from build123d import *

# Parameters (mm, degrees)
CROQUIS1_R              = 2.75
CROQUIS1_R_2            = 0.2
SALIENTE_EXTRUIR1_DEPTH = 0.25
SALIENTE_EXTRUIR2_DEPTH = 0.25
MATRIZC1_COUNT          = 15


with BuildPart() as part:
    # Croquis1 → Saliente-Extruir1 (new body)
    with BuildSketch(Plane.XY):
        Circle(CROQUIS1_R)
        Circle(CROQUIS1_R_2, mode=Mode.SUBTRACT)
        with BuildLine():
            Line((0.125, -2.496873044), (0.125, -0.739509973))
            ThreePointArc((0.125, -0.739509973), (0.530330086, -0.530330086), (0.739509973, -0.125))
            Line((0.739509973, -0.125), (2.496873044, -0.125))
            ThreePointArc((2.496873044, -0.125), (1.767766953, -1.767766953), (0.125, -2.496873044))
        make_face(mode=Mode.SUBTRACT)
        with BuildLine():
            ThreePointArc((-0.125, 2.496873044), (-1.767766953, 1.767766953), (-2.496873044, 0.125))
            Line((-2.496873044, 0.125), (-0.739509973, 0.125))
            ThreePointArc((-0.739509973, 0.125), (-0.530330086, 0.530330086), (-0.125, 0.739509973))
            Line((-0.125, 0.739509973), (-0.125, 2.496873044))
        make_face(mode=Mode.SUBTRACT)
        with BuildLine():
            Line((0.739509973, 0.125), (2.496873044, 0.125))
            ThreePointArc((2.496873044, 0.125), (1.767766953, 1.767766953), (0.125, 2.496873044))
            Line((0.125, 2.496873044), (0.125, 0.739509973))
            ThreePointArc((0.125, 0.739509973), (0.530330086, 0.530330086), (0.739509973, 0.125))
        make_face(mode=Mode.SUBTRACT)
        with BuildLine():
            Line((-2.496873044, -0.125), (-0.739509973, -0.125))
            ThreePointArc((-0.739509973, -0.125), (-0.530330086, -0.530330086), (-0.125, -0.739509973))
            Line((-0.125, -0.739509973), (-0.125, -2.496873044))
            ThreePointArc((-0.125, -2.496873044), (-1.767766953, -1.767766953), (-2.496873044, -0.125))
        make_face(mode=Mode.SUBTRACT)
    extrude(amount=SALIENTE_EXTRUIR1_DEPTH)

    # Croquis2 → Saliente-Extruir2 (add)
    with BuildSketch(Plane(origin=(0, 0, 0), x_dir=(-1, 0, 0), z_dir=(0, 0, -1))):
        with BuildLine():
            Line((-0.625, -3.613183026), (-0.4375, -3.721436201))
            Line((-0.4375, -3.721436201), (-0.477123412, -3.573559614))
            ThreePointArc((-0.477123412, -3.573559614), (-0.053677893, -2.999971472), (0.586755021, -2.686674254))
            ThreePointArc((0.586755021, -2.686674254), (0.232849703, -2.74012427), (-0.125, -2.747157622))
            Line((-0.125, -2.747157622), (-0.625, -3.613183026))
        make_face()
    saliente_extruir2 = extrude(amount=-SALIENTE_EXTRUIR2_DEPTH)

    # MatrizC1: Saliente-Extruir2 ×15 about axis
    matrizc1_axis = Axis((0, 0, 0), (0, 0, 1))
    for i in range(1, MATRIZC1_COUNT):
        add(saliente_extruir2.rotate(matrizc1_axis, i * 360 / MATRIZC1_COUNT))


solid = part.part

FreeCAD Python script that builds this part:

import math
import FreeCAD as App
import Part
import Sketcher

V = App.Vector
Q = App.Units.Quantity

doc = App.newDocument("Part")
params = doc.addObject("Spreadsheet::Sheet", "Params")
for row, (alias, value) in enumerate([
    ("sketch1_diameter", "5.5 mm"),
    ("sketch1_diameter2", "0.4 mm"),
    ("sketch1_radius", "2.5 mm"),
    ("sketch1_radius2", "0.75 mm"),
    ("pad1_length", "0.25 mm"),
    ("sketch2_radius", "1.5 mm"),
    ("sketch2_radius2", "2.75 mm"),
    ("sketch2_length", "1 mm"),
    ("pad2_length", "0.25 mm"),
], start=1):
    params.set(f"A{row}", alias)
    params.set(f"B{row}", "=" + value)
    params.setAlias(f"B{row}", alias)

body = doc.addObject("PartDesign::Body", "Body")

sketch1 = body.newObject("Sketcher::SketchObject", "Sketch")
sketch1.AttachmentSupport = (doc.getObject("XY_Plane"), [""])
sketch1.MapMode = "FlatFace"
sketch1.addGeometry([
    Part.Circle(V(0, 0, 0), V(0, 0, 1), 2.75),
    Part.ArcOfCircle(Part.Circle(V(0, 0, 0), V(0, 0, 1), 2.5), math.radians(-177), math.radians(-93)),
    Part.LineSegment(V(-2.5, -0.12, 0), V(-0.74, -0.12, 0)),
    Part.ArcOfCircle(Part.Circle(V(0, 0, 0), V(0, 0, 1), 0.75), math.radians(-170), math.radians(-100)),
    Part.LineSegment(V(-0.12, -0.74, 0), V(-0.12, -2.5, 0)),
    Part.ArcOfCircle(Part.Circle(V(0, 0, 0), V(0, 0, 1), 2.5), math.radians(-87), math.radians(-3)),
    Part.LineSegment(V(0.12, -2.5, 0), V(0.12, -0.74, 0)),
    Part.ArcOfCircle(Part.Circle(V(0, 0, 0), V(0, 0, 1), 0.75), math.radians(-80), math.radians(-10)),
    Part.LineSegment(V(0.74, -0.12, 0), V(2.5, -0.12, 0)),
    Part.ArcOfCircle(Part.Circle(V(0, 0, 0), V(0, 0, 1), 2.5), math.radians(93), math.radians(177)),
    Part.LineSegment(V(-0.12, 2.5, 0), V(-0.12, 0.74, 0)),
    Part.ArcOfCircle(Part.Circle(V(0, 0, 0), V(0, 0, 1), 0.75), math.radians(100), math.radians(170)),
    Part.LineSegment(V(-0.74, 0.12, 0), V(-2.5, 0.12, 0)),
    Part.Circle(V(0, 0, 0), V(0, 0, 1), 0.2),
    Part.LineSegment(V(2.5, 0.12, 0), V(0.74, 0.12, 0)),
    Part.ArcOfCircle(Part.Circle(V(0, 0, 0), V(0, 0, 1), 0.75), math.radians(10), math.radians(80)),
    Part.LineSegment(V(0.12, 0.74, 0), V(0.12, 2.5, 0)),
    Part.ArcOfCircle(Part.Circle(V(0, 0, 0), V(0, 0, 1), 2.5), math.radians(3), math.radians(87)),
], False)
sketch1.addConstraint([
    Sketcher.Constraint("Coincident", 1, 1, 2, 1),
    Sketcher.Constraint("Coincident", 2, 2, 3, 1),
    Sketcher.Constraint("Coincident", 3, 2, 4, 1),
    Sketcher.Constraint("Coincident", 4, 2, 1, 2),
    Sketcher.Constraint("Coincident", 5, 1, 6, 1),
    Sketcher.Constraint("Coincident", 6, 2, 7, 1),
    Sketcher.Constraint("Coincident", 7, 2, 8, 1),
    Sketcher.Constraint("Coincident", 8, 2, 5, 2),
    Sketcher.Constraint("Coincident", 9, 1, 10, 1),
    Sketcher.Constraint("Coincident", 10, 2, 11, 1),
    Sketcher.Constraint("Coincident", 11, 2, 12, 1),
    Sketcher.Constraint("Coincident", 12, 2, 9, 2),
    Sketcher.Constraint("Coincident", 14, 2, 15, 1),
    Sketcher.Constraint("Coincident", 15, 2, 16, 1),
    Sketcher.Constraint("Coincident", 16, 2, 17, 2),
    Sketcher.Constraint("Coincident", 17, 1, 14, 1),
    Sketcher.Constraint("Horizontal", 2),
    Sketcher.Constraint("Vertical", 4),
    Sketcher.Constraint("Vertical", 6),
    Sketcher.Constraint("Horizontal", 8),
    Sketcher.Constraint("Vertical", 10),
    Sketcher.Constraint("Horizontal", 12),
    Sketcher.Constraint("Horizontal", 14),
    Sketcher.Constraint("Vertical", 16),
    Sketcher.Constraint("Coincident", 0, 3, -1, 1),
    Sketcher.Constraint("Coincident", 1, 3, -1, 1),
    Sketcher.Constraint("Coincident", 3, 3, -1, 1),
    Sketcher.Constraint("Coincident", 5, 3, -1, 1),
    Sketcher.Constraint("Coincident", 7, 3, -1, 1),
    Sketcher.Constraint("Coincident", 9, 3, -1, 1),
    Sketcher.Constraint("Coincident", 11, 3, -1, 1),
    Sketcher.Constraint("Coincident", 13, 3, -1, 1),
    Sketcher.Constraint("Coincident", 15, 3, -1, 1),
    Sketcher.Constraint("Coincident", 17, 3, -1, 1),
    Sketcher.Constraint("Equal", 1, 5),
    Sketcher.Constraint("Equal", 3, 7),
    Sketcher.Constraint("Equal", 5, 9),
    Sketcher.Constraint("Equal", 7, 11),
    Sketcher.Constraint("Equal", 11, 15),
    Sketcher.Constraint("Equal", 9, 17),
    Sketcher.Constraint("Horizontal", 4, 2, 5, 1),
    Sketcher.Constraint("Horizontal", 2, 2, 7, 2),
    Sketcher.Constraint("Horizontal", 12, 2, 14, 2),
    Sketcher.Constraint("Horizontal", 10, 2, 15, 2),
    Sketcher.Constraint("Vertical", 4, 2, 9, 1),
    Sketcher.Constraint("Vertical", 2, 2, 11, 2),
    Sketcher.Constraint("Equal", 14, 4),
    Sketcher.Constraint("Diameter", 0, 5.5),
    Sketcher.Constraint("Diameter", 13, 0.4),
    Sketcher.Constraint("Radius", 1, 2.5),
    Sketcher.Constraint("Radius", 3, 0.75),
    Sketcher.Constraint("DistanceX", 4, 2, 5, 1, 0.25),
])
sketch1.setExpression("Constraints[47]", "Params.sketch1_diameter")
sketch1.setExpression("Constraints[48]", "Params.sketch1_diameter2")
sketch1.setExpression("Constraints[49]", "Params.sketch1_radius")
sketch1.setExpression("Constraints[50]", "Params.sketch1_radius2")
pad1 = body.newObject("PartDesign::Pad", "Pad")
pad1.Profile = sketch1
pad1.setExpression("Length", "Params.pad1_length")

sketch2 = body.newObject("Sketcher::SketchObject", "Sketch001")
sketch2.AttachmentSupport = (doc.getObject("XY_Plane"), [""])
sketch2.MapMode = "FlatFace"
sketch2.addGeometry([
    Part.LineSegment(V(0.62, -3.61, 0), V(0.44, -3.72, 0)),
    Part.LineSegment(V(0.44, -3.72, 0), V(0.48, -3.57, 0)),
    Part.ArcOfCircle(Part.Circle(V(-0.91, -4.15, 0), V(0, 0, 1), 1.5), math.radians(23), math.radians(78)),
    Part.ArcOfCircle(Part.Circle(V(0, 0, 0), V(0, 0, 1), 2.75), math.radians(-102.32), math.radians(-87.39)),
    Part.LineSegment(V(0.12, -2.75, 0), V(0.62, -3.61, 0)),
], False)
sketch2.addConstraint([
    Sketcher.Constraint("Coincident", 0, 2, 1, 1),
    Sketcher.Constraint("Coincident", 1, 2, 2, 1),
    Sketcher.Constraint("Tangent", 2, 2, 3, 1),
    Sketcher.Constraint("Coincident", 3, 2, 4, 1),
    Sketcher.Constraint("Coincident", 4, 2, 0, 1),
    Sketcher.Constraint("Coincident", 3, 3, -1, 1),
    Sketcher.Constraint("Perpendicular", 0, 4),
    Sketcher.Constraint("Radius", 2, 1.5),
    Sketcher.Constraint("Angle", 0, Q("-150 deg")),
    Sketcher.Constraint("Angle", 1, Q("75 deg")),
    Sketcher.Constraint("Radius", 3, 2.75),
    Sketcher.Constraint("Distance", 4, 1.0),
    Sketcher.Constraint("DistanceX", -1, 1, 3, 2, 0.125),
    Sketcher.Constraint("DistanceX", -1, 1, 0, 2, 0.4375),
    Sketcher.Constraint("DistanceY", 1, 2, 3, 2, 0.826402),
])
sketch2.setExpression("Constraints[7]", "Params.sketch2_radius")
sketch2.setExpression("Constraints[10]", "Params.sketch2_radius2")
sketch2.setExpression("Constraints[11]", "Params.sketch2_length")
pad2 = body.newObject("PartDesign::Pad", "Pad001")
pad2.Profile = sketch2
pad2.setExpression("Length", "Params.pad2_length")
doc.recompute()

polarpattern = body.newObject("PartDesign::PolarPattern", "PolarPattern")
polarpattern.Originals = [pad2]
polarpattern.Axis = (doc.getObject("Z_Axis"), [""])
polarpattern.Angle = 360
polarpattern.Occurrences = 15
body.Tip = polarpattern

doc.recompute()
